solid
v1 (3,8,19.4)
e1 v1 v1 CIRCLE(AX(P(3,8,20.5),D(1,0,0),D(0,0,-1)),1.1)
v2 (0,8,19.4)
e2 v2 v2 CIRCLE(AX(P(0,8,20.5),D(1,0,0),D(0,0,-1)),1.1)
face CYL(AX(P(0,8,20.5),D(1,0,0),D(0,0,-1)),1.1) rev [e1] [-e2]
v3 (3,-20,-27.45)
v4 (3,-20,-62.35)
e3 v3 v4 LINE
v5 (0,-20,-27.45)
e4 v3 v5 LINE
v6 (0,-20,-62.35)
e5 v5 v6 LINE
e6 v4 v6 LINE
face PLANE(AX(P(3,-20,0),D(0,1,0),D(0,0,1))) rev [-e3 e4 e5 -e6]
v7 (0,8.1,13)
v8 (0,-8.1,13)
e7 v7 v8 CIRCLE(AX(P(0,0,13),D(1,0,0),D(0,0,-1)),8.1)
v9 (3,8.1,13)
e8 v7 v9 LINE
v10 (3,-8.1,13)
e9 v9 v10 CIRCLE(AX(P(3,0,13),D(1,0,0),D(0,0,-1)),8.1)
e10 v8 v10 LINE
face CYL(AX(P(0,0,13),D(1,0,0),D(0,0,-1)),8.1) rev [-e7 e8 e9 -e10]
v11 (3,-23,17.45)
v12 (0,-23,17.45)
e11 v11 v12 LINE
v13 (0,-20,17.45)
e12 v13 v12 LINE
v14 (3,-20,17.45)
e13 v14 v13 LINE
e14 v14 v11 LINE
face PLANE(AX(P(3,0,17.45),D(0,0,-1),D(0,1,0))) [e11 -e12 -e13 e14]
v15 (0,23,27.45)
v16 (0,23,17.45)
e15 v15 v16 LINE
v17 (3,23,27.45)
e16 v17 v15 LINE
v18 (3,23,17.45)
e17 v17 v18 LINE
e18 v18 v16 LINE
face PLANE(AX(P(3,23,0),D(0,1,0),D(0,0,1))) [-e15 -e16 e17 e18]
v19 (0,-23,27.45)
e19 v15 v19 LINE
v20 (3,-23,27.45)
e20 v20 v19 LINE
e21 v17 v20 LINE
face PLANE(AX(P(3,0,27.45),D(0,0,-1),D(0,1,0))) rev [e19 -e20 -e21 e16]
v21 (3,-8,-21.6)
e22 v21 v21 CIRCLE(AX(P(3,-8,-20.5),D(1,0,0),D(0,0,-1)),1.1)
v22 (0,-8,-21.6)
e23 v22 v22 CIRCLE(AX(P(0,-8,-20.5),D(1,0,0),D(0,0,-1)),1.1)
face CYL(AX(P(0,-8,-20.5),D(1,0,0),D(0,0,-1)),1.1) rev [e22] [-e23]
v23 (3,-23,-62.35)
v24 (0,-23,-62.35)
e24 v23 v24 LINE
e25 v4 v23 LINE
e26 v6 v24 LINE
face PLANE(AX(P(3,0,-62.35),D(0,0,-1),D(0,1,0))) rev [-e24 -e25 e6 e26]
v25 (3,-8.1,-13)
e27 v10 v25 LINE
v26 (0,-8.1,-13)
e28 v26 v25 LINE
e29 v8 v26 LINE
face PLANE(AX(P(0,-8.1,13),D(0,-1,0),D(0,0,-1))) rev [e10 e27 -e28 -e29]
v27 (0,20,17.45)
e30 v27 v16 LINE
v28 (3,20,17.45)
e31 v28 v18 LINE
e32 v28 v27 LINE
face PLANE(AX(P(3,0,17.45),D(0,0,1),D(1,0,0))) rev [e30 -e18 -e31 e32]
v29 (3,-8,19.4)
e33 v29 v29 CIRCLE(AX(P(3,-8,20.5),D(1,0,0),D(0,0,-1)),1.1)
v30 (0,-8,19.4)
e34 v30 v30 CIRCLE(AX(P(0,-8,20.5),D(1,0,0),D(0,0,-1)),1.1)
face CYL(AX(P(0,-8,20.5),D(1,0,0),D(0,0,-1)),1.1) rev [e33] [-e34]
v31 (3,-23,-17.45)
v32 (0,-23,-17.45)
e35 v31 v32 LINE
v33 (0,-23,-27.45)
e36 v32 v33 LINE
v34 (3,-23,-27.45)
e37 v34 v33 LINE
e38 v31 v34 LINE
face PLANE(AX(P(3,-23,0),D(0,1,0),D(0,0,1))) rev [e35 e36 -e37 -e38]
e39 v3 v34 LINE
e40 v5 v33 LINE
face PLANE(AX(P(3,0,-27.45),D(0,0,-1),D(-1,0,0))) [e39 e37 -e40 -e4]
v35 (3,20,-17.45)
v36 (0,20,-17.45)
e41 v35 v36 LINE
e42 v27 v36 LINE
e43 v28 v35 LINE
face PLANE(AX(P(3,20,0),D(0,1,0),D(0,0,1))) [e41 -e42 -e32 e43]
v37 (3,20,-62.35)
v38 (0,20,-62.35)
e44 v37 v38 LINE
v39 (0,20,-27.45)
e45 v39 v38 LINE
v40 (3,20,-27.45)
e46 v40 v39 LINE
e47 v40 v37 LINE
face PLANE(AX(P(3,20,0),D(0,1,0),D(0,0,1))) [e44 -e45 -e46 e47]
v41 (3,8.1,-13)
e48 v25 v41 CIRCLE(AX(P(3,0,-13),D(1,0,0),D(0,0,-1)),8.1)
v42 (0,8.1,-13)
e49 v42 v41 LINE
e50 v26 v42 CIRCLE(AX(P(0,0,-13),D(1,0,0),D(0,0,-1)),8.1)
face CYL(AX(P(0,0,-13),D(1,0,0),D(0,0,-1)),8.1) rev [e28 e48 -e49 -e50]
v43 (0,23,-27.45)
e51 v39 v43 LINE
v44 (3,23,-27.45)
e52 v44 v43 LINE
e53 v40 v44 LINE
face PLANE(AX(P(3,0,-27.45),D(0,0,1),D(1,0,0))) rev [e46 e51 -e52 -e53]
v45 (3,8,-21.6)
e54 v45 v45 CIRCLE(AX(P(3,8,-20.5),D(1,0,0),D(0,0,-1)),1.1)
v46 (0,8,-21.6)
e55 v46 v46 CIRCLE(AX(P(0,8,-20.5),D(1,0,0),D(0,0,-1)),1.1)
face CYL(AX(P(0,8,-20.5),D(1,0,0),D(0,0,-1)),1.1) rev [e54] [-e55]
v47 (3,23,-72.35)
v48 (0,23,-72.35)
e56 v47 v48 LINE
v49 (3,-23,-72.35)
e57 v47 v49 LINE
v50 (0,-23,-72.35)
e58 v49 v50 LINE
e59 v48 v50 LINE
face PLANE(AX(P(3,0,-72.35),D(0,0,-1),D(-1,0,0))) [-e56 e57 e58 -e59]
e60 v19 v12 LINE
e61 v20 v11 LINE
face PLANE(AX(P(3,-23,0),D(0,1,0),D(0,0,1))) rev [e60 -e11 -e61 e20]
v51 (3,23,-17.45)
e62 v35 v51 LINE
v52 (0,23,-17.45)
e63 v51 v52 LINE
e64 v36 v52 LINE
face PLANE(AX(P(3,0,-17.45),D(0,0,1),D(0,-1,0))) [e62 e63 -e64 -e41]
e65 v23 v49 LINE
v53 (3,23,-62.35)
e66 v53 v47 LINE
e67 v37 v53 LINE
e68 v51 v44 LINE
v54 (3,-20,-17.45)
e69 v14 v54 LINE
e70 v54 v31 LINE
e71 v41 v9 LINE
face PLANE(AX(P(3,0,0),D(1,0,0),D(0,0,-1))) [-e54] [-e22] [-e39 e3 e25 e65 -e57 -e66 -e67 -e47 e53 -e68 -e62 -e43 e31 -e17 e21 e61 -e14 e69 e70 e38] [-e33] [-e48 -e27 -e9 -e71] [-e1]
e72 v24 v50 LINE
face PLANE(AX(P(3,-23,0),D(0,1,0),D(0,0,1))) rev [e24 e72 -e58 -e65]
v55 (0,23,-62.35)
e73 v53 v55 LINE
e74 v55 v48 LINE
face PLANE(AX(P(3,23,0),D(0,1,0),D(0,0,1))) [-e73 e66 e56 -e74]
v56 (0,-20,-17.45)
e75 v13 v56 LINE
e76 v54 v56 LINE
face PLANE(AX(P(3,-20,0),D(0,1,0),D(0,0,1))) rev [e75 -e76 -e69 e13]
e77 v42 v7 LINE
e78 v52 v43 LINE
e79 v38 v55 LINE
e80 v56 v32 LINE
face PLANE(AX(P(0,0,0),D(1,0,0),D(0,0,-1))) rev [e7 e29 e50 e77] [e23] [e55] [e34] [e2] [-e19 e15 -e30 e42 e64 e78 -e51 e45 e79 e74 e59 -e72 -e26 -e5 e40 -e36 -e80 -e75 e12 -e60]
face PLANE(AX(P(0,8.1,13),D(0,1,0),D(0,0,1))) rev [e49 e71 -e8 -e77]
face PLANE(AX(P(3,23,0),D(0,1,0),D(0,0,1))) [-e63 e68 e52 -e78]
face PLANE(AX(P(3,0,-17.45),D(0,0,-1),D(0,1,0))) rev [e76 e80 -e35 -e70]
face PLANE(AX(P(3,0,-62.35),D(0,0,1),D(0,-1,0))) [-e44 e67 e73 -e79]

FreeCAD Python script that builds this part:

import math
import FreeCAD as App
import Part
import Sketcher

V = App.Vector
Q = App.Units.Quantity

doc = App.newDocument("Part")
body = doc.addObject("PartDesign::Body", "Body")

sketch1 = body.newObject("Sketcher::SketchObject", "Sketch")
sketch1.AttachmentSupport = (doc.getObject("YZ_Plane"), [""])
sketch1.MapMode = "FlatFace"
sketch1.addGeometry(Part.LineSegment(V(-20, 17.45, 0), V(-20, -17.45, 0)), False)
sketch1.addGeometry(Part.LineSegment(V(-20, -17.45, 0), V(-23, -17.45, 0)), False)
sketch1.addGeometry(Part.LineSegment(V(-23, -17.45, 0), V(-23, -27.45, 0)), False)
sketch1.addGeometry(Part.LineSegment(V(-23, -27.45, 0), V(-20, -27.45, 0)), False)
sketch1.addGeometry(Part.LineSegment(V(-20, -27.45, 0), V(-20, -62.35, 0)), False)
sketch1.addGeometry(Part.LineSegment(V(-20, -62.35, 0), V(-23, -62.35, 0)), False)
sketch1.addGeometry(Part.LineSegment(V(-23, -62.35, 0), V(-23, -72.35, 0)), False)
sketch1.addGeometry(Part.LineSegment(V(-23, -72.35, 0), V(23, -72.35, 0)), False)
sketch1.addGeometry(Part.LineSegment(V(23, -72.35, 0), V(23, -62.35, 0)), False)
sketch1.addGeometry(Part.LineSegment(V(23, -62.35, 0), V(20, -62.35, 0)), False)
sketch1.addGeometry(Part.LineSegment(V(20, -62.35, 0), V(20, -27.45, 0)), False)
sketch1.addGeometry(Part.LineSegment(V(20, -27.45, 0), V(23, -27.45, 0)), False)
sketch1.addGeometry(Part.LineSegment(V(23, -27.45, 0), V(23, -17.45, 0)), False)
sketch1.addGeometry(Part.LineSegment(V(23, -17.45, 0), V(20, -17.45, 0)), False)
sketch1.addGeometry(Part.LineSegment(V(20, -17.45, 0), V(20, 17.45, 0)), False)
sketch1.addGeometry(Part.LineSegment(V(20, 17.45, 0), V(23, 17.45, 0)), False)
sketch1.addGeometry(Part.LineSegment(V(23, 17.45, 0), V(23, 27.45, 0)), False)
sketch1.addGeometry(Part.LineSegment(V(23, 27.45, 0), V(-23, 27.45, 0)), False)
sketch1.addGeometry(Part.LineSegment(V(-23, 27.45, 0), V(-23, 17.45, 0)), False)
sketch1.addGeometry(Part.LineSegment(V(-23, 17.45, 0), V(-20, 17.45, 0)), False)
sketch1.addConstraint(Sketcher.Constraint("Coincident", 0, 2, 1, 1))
sketch1.addConstraint(Sketcher.Constraint("Coincident", 1, 2, 2, 1))
sketch1.addConstraint(Sketcher.Constraint("Coincident", 2, 2, 3, 1))
sketch1.addConstraint(Sketcher.Constraint("Coincident", 3, 2, 4, 1))
sketch1.addConstraint(Sketcher.Constraint("Coincident", 4, 2, 5, 1))
sketch1.addConstraint(Sketcher.Constraint("Coincident", 5, 2, 6, 1))
sketch1.addConstraint(Sketcher.Constraint("Coincident", 6, 2, 7, 1))
sketch1.addConstraint(Sketcher.Constraint("Coincident", 7, 2, 8, 1))
sketch1.addConstraint(Sketcher.Constraint("Coincident", 8, 2, 9, 1))
sketch1.addConstraint(Sketcher.Constraint("Coincident", 9, 2, 10, 1))
sketch1.addConstraint(Sketcher.Constraint("Coincident", 10, 2, 11, 1))
sketch1.addConstraint(Sketcher.Constraint("Coincident", 11, 2, 12, 1))
sketch1.addConstraint(Sketcher.Constraint("Coincident", 12, 2, 13, 1))
sketch1.addConstraint(Sketcher.Constraint("Coincident", 13, 2, 14, 1))
sketch1.addConstraint(Sketcher.Constraint("Coincident", 14, 2, 15, 1))
sketch1.addConstraint(Sketcher.Constraint("Coincident", 15, 2, 16, 1))
sketch1.addConstraint(Sketcher.Constraint("Coincident", 16, 2, 17, 1))
sketch1.addConstraint(Sketcher.Constraint("Coincident", 17, 2, 18, 1))
sketch1.addConstraint(Sketcher.Constraint("Coincident", 18, 2, 19, 1))
sketch1.addConstraint(Sketcher.Constraint("Coincident", 19, 2, 0, 1))
sketch1.addConstraint(Sketcher.Constraint("Vertical", 0))
sketch1.addConstraint(Sketcher.Constraint("Horizontal", 1))
sketch1.addConstraint(Sketcher.Constraint("Vertical", 2))
sketch1.addConstraint(Sketcher.Constraint("Horizontal", 3))
sketch1.addConstraint(Sketcher.Constraint("Vertical", 4))
sketch1.addConstraint(Sketcher.Constraint("Horizontal", 5))
sketch1.addConstraint(Sketcher.Constraint("Vertical", 6))
sketch1.addConstraint(Sketcher.Constraint("Horizontal", 7))
sketch1.addConstraint(Sketcher.Constraint("Vertical", 8))
sketch1.addConstraint(Sketcher.Constraint("Horizontal", 9))
sketch1.addConstraint(Sketcher.Constraint("Vertical", 10))
sketch1.addConstraint(Sketcher.Constraint("Horizontal", 11))
sketch1.addConstraint(Sketcher.Constraint("Vertical", 12))
sketch1.addConstraint(Sketcher.Constraint("Horizontal", 13))
sketch1.addConstraint(Sketcher.Constraint("Vertical", 14))
sketch1.addConstraint(Sketcher.Constraint("Horizontal", 15))
sketch1.addConstraint(Sketcher.Constraint("Vertical", 16))
sketch1.addConstraint(Sketcher.Constraint("Horizontal", 17))
sketch1.addConstraint(Sketcher.Constraint("Vertical", 18))
sketch1.addConstraint(Sketcher.Constraint("Horizontal", 19))
sketch1.addConstraint(Sketcher.Constraint("Symmetric", 0, 2, 14, 2, -1, 1))
sketch1.addConstraint(Sketcher.Constraint("Symmetric", 2, 2, 16, 2, -1, 1))
sketch1.addConstraint(Sketcher.Constraint("Symmetric", 11, 2, 17, 2, -1, 1))
sketch1.addConstraint(Sketcher.Constraint("Symmetric", 5, 2, 8, 2, -2))
sketch1.addConstraint(Sketcher.Constraint("Symmetric", 1, 2, 12, 2, -2))
sketch1.addConstraint(Sketcher.Constraint("Horizontal", 15, 2, 18, 2))
sketch1.addConstraint(Sketcher.Constraint("Vertical", 0, 2, 3, 2))
sketch1.addConstraint(Sketcher.Constraint("Vertical", 2, 2, 5, 2))
sketch1.addConstraint(Sketcher.Constraint("Vertical", 10, 2, 13, 2))
sketch1.addConstraint(Sketcher.Constraint("Equal", 0, 4))
sketch1.addConstraint(Sketcher.Constraint("Equal", 2, 6))
sketch1.addConstraint(Sketcher.Constraint("DistanceX", 1, 2, 1, 1, Q("3 mm")))
sketch1.addConstraint(Sketcher.Constraint("DistanceX", 7, 1, 7, 2, Q("46 mm")))
sketch1.addConstraint(Sketcher.Constraint("DistanceY", 2, 2, 2, 1, Q("10 mm")))
sketch1.addConstraint(Sketcher.Constraint("DistanceY", 0, 2, 0, 1, Q("34.9 mm")))
pad1 = body.newObject("PartDesign::Pad", "Pad")
pad1.Profile = sketch1
pad1.Length = 3

sketch2 = body.newObject("Sketcher::SketchObject", "Sketch001")
sketch2.AttachmentSupport = (doc.getObject("YZ_Plane"), [""])
sketch2.MapMode = "FlatFace"
sketch2.AttachmentOffset = App.Placement(V(0, 0, 3), App.Rotation())
sketch2.addGeometry(Part.Circle(V(8, 20.5, 0), V(0, 0, 1), 1.1), False)
sketch2.addGeometry(Part.Circle(V(-8, 20.5, 0), V(0, 0, 1), 1.1), False)
sketch2.addGeometry(Part.Circle(V(8, -20.5, 0), V(0, 0, 1), 1.1), False)
sketch2.addGeometry(Part.Circle(V(-8, -20.5, 0), V(0, 0, 1), 1.1), False)
sketch2.addGeometry(Part.LineSegment(V(8.1, -13, 0), V(8.1, 13, 0)), False)
sketch2.addGeometry(Part.ArcOfCircle(Part.Circle(V(0, 13, 0), V(0, 0, 1), 8.1), math.radians(0), math.radians(180)), False)
sketch2.addGeometry(Part.LineSegment(V(-8.1, 13, 0), V(-8.1, -13, 0)), False)
sketch2.addGeometry(Part.ArcOfCircle(Part.Circle(V(0, -13, 0), V(0, 0, 1), 8.1), math.radians(180), math.radians(360)), False)
sketch2.addConstraint(Sketcher.Constraint("Tangent", 4, 2, 5, 1))
sketch2.addConstraint(Sketcher.Constraint("Tangent", 5, 2, 6, 1))
sketch2.addConstraint(Sketcher.Constraint("Tangent", 6, 2, 7, 1))
sketch2.addConstraint(Sketcher.Constraint("Tangent", 7, 2, 4, 1))
sketch2.addConstraint(Sketcher.Constraint("Vertical", 4))
sketch2.addConstraint(Sketcher.Constraint("Vertical", 6))
sketch2.addConstraint(Sketcher.Constraint("Equal", 0, 1))
sketch2.addConstraint(Sketcher.Constraint("Equal", 1, 2))
sketch2.addConstraint(Sketcher.Constraint("Equal", 2, 3))
sketch2.addConstraint(Sketcher.Constraint("Symmetric", 1, 3, 2, 3, -1, 1))
sketch2.addConstraint(Sketcher.Constraint("Symmetric", 0, 3, 3, 3, -1, 1))
sketch2.addConstraint(Sketcher.Constraint("Symmetric", 5, 3, 7, 3, -1, 1))
sketch2.addConstraint(Sketcher.Constraint("Symmetric", 0, 3, 1, 3, -2))
sketch2.addConstraint(Sketcher.Constraint("Diameter", 0, Q("2.2 mm")))
sketch2.addConstraint(Sketcher.Constraint("Radius", 5, Q("8.1 mm")))
sketch2.addConstraint(Sketcher.Constraint("DistanceY", 4, 1, 4, 2, Q("26 mm")))
sketch2.addConstraint(Sketcher.Constraint("DistanceX", -1, 1, 0, 3, Q("8 mm")))
sketch2.addConstraint(Sketcher.Constraint("DistanceY", 2, 3, 0, 3, Q("41 mm")))
pocket1 = body.newObject("PartDesign::Pocket", "Pocket")
pocket1.Profile = sketch2
pocket1.Type = "ThroughAll"

doc.recompute()
